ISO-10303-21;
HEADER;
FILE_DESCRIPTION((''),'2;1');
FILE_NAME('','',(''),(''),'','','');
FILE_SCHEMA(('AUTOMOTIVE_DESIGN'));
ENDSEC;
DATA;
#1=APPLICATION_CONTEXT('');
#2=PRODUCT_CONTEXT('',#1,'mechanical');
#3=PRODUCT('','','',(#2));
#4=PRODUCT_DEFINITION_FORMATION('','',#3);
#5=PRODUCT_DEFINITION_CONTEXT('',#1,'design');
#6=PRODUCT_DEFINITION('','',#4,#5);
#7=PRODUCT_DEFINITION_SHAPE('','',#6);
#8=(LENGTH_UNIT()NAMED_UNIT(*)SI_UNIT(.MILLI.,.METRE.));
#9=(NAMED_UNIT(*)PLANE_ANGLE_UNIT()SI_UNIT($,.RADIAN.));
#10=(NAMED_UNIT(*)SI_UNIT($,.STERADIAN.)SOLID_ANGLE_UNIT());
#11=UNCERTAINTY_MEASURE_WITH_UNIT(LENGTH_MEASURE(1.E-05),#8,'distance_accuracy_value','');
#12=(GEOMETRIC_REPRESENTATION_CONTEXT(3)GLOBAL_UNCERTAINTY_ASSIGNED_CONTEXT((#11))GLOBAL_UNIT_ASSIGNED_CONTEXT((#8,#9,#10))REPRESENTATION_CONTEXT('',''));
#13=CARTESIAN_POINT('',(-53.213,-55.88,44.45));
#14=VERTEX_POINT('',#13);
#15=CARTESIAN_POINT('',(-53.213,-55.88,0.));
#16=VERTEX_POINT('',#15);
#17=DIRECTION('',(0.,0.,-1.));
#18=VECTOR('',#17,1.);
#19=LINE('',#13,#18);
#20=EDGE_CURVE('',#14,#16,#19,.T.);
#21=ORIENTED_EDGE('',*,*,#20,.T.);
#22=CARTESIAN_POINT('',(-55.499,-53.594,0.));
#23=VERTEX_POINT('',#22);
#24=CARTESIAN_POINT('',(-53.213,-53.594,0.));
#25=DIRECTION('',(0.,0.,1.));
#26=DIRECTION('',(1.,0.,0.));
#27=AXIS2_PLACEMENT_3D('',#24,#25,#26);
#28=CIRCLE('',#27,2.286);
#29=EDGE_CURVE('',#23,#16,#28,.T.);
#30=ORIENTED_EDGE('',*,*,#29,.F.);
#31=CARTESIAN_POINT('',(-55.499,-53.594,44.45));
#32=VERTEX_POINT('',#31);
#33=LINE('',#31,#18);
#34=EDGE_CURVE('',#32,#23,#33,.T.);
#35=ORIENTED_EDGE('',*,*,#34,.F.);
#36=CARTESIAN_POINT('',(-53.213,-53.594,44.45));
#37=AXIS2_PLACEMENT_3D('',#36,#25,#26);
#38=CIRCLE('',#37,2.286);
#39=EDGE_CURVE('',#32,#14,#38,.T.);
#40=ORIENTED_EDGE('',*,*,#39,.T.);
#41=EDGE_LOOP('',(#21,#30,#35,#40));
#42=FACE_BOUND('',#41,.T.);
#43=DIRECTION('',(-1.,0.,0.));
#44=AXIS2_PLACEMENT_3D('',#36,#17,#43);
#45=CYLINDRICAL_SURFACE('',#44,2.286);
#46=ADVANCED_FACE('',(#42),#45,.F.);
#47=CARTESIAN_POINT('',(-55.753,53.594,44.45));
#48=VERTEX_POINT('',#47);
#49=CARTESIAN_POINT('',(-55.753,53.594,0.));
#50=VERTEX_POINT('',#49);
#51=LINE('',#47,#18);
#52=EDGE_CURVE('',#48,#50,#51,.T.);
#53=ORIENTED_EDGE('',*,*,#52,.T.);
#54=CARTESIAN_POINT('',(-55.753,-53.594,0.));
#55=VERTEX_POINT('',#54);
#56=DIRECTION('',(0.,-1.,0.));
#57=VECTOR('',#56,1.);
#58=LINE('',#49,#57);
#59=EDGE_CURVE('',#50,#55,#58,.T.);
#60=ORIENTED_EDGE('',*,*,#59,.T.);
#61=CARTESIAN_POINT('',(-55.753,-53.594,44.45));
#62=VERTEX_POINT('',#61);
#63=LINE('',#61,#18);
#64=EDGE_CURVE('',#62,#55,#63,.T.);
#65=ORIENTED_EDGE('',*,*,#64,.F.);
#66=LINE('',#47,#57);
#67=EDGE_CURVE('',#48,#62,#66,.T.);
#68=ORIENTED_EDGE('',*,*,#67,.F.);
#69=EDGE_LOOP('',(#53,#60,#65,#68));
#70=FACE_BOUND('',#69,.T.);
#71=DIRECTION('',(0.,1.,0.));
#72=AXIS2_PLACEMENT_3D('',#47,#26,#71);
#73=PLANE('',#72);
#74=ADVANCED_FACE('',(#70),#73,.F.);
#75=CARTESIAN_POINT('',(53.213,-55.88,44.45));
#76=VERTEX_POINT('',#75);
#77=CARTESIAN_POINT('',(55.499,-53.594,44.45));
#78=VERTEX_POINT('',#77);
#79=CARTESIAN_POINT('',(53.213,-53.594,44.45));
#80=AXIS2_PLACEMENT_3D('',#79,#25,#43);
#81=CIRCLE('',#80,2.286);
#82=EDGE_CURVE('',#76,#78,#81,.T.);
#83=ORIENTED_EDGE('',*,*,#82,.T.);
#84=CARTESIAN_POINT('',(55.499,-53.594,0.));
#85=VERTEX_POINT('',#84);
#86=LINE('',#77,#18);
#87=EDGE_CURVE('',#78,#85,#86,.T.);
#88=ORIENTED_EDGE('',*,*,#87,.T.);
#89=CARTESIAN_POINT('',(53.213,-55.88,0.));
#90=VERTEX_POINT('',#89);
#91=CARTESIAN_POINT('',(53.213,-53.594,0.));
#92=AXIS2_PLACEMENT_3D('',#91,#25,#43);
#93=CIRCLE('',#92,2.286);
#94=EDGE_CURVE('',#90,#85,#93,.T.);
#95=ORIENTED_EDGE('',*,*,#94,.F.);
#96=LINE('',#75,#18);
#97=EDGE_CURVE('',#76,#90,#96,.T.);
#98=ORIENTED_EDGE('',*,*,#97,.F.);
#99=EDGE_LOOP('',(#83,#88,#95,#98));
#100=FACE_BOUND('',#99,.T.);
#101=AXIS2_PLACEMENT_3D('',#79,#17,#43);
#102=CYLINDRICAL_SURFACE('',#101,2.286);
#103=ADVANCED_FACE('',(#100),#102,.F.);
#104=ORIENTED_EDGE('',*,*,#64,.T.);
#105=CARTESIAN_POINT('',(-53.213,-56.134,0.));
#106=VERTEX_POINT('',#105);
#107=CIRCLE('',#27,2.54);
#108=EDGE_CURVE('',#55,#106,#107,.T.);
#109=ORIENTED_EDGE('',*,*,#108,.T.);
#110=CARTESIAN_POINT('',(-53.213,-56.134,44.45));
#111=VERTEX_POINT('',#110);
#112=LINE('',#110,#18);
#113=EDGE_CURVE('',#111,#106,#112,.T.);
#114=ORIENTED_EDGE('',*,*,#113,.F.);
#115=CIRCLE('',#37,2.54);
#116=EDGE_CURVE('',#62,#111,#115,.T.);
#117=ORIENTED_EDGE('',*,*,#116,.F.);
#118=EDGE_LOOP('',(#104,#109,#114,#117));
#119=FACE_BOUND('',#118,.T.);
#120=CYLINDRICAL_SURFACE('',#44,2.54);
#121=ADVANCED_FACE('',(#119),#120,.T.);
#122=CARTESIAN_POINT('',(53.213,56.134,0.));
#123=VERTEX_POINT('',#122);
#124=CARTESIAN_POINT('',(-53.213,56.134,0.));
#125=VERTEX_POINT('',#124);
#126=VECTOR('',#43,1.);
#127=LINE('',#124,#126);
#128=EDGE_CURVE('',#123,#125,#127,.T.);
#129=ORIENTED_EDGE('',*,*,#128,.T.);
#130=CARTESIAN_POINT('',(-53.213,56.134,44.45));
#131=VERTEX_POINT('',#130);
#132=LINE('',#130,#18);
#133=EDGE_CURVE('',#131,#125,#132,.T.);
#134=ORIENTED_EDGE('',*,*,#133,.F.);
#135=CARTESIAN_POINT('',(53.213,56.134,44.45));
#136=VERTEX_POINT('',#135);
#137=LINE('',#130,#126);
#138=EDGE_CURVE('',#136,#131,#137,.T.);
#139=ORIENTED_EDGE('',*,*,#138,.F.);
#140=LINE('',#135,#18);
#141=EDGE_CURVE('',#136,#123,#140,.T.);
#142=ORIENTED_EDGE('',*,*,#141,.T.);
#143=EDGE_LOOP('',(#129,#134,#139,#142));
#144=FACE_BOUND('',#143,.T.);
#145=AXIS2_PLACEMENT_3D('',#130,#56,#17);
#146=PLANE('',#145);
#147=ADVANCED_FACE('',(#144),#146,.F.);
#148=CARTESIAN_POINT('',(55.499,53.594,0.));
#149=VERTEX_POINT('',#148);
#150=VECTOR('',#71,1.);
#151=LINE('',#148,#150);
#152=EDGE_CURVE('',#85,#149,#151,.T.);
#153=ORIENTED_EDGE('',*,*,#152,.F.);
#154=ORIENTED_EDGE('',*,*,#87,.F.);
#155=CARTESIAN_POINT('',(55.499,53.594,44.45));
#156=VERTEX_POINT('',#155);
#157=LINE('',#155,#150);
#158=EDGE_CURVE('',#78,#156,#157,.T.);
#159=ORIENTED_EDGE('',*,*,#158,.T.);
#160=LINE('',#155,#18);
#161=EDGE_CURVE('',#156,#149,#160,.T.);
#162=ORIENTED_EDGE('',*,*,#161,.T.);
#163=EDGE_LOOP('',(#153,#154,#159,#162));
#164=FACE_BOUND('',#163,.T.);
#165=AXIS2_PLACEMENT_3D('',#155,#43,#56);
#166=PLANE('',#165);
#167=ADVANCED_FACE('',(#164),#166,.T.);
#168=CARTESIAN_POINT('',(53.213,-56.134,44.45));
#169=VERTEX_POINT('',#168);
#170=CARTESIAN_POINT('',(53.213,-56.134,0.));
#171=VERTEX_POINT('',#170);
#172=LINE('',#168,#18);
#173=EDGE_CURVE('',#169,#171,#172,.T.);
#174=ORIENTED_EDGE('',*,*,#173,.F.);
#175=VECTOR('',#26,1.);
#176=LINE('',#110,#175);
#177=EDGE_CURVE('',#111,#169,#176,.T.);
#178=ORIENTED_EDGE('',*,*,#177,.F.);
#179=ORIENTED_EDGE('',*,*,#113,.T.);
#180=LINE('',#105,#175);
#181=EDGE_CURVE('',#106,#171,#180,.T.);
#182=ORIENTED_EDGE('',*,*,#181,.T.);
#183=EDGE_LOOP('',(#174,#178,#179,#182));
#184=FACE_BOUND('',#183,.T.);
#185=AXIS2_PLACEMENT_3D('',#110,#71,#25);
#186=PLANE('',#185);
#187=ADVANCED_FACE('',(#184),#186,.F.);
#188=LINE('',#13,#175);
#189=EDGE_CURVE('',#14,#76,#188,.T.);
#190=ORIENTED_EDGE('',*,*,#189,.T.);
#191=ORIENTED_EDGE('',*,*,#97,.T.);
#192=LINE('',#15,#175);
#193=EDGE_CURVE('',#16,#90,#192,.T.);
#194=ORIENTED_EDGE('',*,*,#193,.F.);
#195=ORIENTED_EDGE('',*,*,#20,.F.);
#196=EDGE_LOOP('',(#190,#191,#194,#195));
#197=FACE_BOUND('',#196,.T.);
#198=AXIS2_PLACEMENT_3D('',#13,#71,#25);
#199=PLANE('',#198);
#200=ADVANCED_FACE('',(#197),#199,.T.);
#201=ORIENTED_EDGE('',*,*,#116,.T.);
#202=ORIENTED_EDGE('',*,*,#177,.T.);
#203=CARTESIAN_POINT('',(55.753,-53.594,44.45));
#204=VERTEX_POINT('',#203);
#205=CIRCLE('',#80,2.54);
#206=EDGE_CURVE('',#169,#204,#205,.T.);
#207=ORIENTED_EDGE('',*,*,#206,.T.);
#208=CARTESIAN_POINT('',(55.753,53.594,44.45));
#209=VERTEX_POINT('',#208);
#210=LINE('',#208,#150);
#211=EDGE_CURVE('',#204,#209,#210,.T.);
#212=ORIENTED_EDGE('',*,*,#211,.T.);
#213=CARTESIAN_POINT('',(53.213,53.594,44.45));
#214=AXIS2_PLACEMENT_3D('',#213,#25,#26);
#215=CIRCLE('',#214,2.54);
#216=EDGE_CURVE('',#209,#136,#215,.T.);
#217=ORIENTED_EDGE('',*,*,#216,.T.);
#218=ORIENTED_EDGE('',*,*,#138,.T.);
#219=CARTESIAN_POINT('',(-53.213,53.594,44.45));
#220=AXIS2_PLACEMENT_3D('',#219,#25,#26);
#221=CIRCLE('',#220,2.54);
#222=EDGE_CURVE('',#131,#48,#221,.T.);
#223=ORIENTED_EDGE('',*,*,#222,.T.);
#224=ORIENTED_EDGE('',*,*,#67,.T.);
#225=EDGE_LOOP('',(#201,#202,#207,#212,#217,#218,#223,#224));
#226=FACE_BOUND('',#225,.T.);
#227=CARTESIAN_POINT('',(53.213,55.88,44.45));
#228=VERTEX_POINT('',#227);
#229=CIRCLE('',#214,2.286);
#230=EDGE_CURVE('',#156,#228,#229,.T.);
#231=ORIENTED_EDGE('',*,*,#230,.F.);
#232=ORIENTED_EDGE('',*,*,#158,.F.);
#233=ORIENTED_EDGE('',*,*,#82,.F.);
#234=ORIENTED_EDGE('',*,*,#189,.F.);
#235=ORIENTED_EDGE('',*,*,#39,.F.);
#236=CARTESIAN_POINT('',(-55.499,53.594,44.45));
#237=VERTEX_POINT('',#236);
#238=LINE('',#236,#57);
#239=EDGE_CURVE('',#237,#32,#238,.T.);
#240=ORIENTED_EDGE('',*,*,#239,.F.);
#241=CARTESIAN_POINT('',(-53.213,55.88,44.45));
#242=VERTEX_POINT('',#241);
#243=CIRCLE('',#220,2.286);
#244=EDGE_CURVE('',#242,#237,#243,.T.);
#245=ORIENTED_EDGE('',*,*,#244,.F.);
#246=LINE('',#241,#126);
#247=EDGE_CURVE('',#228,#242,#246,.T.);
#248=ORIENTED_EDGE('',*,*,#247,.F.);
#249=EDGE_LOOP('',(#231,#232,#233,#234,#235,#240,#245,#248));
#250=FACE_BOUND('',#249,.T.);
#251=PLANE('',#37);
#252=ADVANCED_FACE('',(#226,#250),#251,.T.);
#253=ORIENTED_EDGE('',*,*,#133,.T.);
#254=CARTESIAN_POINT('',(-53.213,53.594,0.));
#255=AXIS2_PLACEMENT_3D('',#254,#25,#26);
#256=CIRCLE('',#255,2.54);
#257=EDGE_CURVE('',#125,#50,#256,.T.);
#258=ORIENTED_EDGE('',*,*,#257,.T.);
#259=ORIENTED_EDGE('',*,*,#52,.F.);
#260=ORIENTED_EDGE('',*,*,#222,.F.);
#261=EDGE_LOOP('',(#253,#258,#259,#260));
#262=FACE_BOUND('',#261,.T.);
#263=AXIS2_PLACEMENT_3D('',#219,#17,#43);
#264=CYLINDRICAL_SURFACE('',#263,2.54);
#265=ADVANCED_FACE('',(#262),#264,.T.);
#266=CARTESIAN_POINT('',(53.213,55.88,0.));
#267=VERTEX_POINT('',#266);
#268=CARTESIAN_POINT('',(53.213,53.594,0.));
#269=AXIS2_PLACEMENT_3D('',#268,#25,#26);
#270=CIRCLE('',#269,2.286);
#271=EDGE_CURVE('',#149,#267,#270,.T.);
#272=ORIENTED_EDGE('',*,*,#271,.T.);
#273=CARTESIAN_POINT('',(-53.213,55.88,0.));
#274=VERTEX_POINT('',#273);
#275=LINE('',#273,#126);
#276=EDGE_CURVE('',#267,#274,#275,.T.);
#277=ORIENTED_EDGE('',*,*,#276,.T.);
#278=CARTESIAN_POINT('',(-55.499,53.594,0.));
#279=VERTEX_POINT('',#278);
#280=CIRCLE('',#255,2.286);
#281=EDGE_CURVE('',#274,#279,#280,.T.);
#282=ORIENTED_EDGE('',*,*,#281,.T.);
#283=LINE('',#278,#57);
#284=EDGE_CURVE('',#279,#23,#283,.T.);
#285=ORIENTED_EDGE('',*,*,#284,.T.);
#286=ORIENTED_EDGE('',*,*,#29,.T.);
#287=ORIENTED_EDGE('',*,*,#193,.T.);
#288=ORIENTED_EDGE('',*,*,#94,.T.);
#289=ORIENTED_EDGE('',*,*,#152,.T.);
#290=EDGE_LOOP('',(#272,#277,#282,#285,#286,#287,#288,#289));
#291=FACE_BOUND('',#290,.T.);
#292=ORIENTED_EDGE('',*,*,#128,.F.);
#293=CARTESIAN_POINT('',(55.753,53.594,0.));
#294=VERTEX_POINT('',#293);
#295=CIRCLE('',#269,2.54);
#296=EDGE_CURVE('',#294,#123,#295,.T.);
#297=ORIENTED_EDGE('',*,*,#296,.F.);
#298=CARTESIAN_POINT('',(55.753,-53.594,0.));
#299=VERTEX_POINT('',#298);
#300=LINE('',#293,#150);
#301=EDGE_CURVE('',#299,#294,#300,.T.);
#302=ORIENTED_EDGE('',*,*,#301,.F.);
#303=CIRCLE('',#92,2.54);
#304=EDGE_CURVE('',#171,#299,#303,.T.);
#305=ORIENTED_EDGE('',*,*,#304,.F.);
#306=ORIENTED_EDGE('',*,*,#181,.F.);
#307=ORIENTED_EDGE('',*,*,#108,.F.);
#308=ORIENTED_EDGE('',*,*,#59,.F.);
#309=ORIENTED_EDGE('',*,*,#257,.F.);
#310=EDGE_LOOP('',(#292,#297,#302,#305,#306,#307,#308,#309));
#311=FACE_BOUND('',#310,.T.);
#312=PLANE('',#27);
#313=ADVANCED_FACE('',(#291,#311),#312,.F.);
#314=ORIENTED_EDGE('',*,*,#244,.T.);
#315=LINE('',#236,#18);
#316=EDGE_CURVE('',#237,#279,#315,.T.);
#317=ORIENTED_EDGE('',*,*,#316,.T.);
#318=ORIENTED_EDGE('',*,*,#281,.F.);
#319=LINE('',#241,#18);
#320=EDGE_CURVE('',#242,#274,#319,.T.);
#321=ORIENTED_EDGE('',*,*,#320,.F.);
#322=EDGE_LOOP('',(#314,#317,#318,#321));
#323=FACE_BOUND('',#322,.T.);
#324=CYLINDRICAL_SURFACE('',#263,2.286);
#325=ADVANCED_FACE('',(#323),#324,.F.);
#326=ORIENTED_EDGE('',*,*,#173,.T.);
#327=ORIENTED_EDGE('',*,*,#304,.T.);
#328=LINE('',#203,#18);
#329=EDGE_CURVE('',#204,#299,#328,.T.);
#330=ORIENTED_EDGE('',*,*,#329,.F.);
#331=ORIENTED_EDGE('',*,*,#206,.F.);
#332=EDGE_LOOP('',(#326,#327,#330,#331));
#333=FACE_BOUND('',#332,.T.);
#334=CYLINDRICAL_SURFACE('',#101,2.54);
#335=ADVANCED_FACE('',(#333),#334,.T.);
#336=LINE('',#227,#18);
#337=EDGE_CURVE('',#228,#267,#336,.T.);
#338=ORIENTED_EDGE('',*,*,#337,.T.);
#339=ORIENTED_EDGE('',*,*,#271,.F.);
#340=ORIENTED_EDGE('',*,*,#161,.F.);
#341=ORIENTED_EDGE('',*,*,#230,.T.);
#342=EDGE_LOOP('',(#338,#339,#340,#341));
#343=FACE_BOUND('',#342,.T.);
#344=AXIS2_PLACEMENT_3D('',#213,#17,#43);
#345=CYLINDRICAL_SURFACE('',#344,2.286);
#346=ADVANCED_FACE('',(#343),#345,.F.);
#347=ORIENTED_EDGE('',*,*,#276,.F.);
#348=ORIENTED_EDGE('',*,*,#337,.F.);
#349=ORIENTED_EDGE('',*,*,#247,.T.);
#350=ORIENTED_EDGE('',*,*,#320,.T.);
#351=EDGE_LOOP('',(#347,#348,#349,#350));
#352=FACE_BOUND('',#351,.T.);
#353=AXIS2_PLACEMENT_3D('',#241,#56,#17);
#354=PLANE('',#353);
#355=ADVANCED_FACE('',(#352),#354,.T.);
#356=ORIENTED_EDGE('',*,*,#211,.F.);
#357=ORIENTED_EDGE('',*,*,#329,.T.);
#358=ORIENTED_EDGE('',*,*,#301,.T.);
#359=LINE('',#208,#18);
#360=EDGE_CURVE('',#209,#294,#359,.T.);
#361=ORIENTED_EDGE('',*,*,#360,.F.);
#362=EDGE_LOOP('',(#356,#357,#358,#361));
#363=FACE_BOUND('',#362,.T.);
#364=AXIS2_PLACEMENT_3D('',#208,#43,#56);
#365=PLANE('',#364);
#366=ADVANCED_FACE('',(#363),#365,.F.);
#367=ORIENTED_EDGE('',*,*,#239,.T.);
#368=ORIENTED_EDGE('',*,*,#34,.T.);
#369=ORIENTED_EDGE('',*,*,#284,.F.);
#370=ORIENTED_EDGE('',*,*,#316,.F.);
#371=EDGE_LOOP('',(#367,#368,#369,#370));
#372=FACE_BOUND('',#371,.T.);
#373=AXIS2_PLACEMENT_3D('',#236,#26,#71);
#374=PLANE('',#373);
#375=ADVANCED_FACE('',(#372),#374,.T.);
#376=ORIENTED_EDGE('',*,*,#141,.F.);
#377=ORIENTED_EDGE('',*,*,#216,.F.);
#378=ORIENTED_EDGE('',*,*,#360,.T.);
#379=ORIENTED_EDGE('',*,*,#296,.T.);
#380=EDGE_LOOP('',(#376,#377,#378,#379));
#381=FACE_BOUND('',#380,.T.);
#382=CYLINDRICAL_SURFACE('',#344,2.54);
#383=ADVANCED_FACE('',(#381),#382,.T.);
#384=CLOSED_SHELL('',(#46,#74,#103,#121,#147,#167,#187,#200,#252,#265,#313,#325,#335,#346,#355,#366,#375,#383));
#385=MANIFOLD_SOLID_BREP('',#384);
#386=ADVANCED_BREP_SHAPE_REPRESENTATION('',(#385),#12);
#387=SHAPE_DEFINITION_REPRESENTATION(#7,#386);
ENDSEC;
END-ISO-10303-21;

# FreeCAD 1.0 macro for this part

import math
import FreeCAD as App
import Part
import Sketcher

V = App.Vector
Q = App.Units.Quantity

doc = App.newDocument("Part")
params = doc.addObject("Spreadsheet::Sheet", "Params")
for row, (alias, value) in enumerate([
    ("sketch1_radius", "0.1 in"),
    ("sketch1_radius2", "0.09 in"),
    ("sketch1_width", "4.19 in"),
    ("sketch1_height", "4.22 in"),
    ("pad1_length", "1.75 in"),
], start=1):
    params.set(f"A{row}", alias)
    params.set(f"B{row}", "=" + value)
    params.setAlias(f"B{row}", alias)

body = doc.addObject("PartDesign::Body", "Body")

sketch1 = body.newObject("Sketcher::SketchObject", "Sketch")
sketch1.AttachmentSupport = (doc.getObject("XY_Plane"), [""])
sketch1.MapMode = "FlatFace"
sketch1.addGeometry([
    Part.LineSegment(V(53.2, 56.1, 0), V(-53.2, 56.1, 0)),
    Part.ArcOfCircle(Part.Circle(V(-53.2, 53.6, 0), V(0, 0, 1), 2.5), math.radians(90), math.radians(180)),
    Part.LineSegment(V(-55.8, 53.6, 0), V(-55.8, -53.6, 0)),
    Part.ArcOfCircle(Part.Circle(V(-53.2, -53.6, 0), V(0, 0, 1), 2.5), math.radians(-180), math.radians(-90)),
    Part.LineSegment(V(-53.2, -56.1, 0), V(53.2, -56.1, 0)),
    Part.ArcOfCircle(Part.Circle(V(53.2, -53.6, 0), V(0, 0, 1), 2.5), math.radians(-90), math.radians(0)),
    Part.LineSegment(V(55.8, -53.6, 0), V(55.8, 53.6, 0)),
    Part.ArcOfCircle(Part.Circle(V(53.2, 53.6, 0), V(0, 0, 1), 2.5), math.radians(0), math.radians(90)),
    Part.ArcOfCircle(Part.Circle(V(-53.2, 53.6, 0), V(0, 0, 1), 2.3), math.radians(90), math.radians(180)),
    Part.LineSegment(V(-53.2, 55.9, 0), V(53.2, 55.9, 0)),
    Part.ArcOfCircle(Part.Circle(V(53.2, 53.6, 0), V(0, 0, 1), 2.3), math.radians(0), math.radians(90)),
    Part.LineSegment(V(55.5, 53.6, 0), V(55.5, -53.6, 0)),
    Part.ArcOfCircle(Part.Circle(V(53.2, -53.6, 0), V(0, 0, 1), 2.3), math.radians(-90), math.radians(0)),
    Part.LineSegment(V(53.2, -55.9, 0), V(-53.2, -55.9, 0)),
    Part.ArcOfCircle(Part.Circle(V(-53.2, -53.6, 0), V(0, 0, 1), 2.3), math.radians(180), math.radians(270)),
    Part.LineSegment(V(-55.5, -53.6, 0), V(-55.5, 53.6, 0)),
], False)
sketch1.addConstraint([
    Sketcher.Constraint("Tangent", 0, 2, 1, 1),
    Sketcher.Constraint("Tangent", 1, 2, 2, 1),
    Sketcher.Constraint("Tangent", 2, 2, 3, 1),
    Sketcher.Constraint("Tangent", 3, 2, 4, 1),
    Sketcher.Constraint("Tangent", 4, 2, 5, 1),
    Sketcher.Constraint("Tangent", 5, 2, 6, 1),
    Sketcher.Constraint("Tangent", 6, 2, 7, 1),
    Sketcher.Constraint("Tangent", 7, 2, 0, 1),
    Sketcher.Constraint("Tangent", 8, 1, 9, 1),
    Sketcher.Constraint("Tangent", 9, 2, 10, 2),
    Sketcher.Constraint("Tangent", 10, 1, 11, 1),
    Sketcher.Constraint("Tangent", 11, 2, 12, 2),
    Sketcher.Constraint("Tangent", 12, 1, 13, 1),
    Sketcher.Constraint("Tangent", 13, 2, 14, 2),
    Sketcher.Constraint("Tangent", 14, 1, 15, 1),
    Sketcher.Constraint("Tangent", 15, 2, 8, 2),
    Sketcher.Constraint("Horizontal", 0),
    Sketcher.Constraint("Vertical", 2),
    Sketcher.Constraint("Horizontal", 4),
    Sketcher.Constraint("Vertical", 6),
    Sketcher.Constraint("Horizontal", 9),
    Sketcher.Constraint("Vertical", 11),
    Sketcher.Constraint("Horizontal", 13),
    Sketcher.Constraint("Vertical", 15),
    Sketcher.Constraint("Coincident", 8, 3, 1, 3),
    Sketcher.Constraint("Coincident", 10, 3, 7, 3),
    Sketcher.Constraint("Coincident", 12, 3, 5, 3),
    Sketcher.Constraint("Equal", 1, 3),
    Sketcher.Constraint("Equal", 3, 5),
    Sketcher.Constraint("Equal", 5, 7),
    Sketcher.Constraint("Equal", 12, 14),
    Sketcher.Constraint("Symmetric", 1, 3, 5, 3, -1, 1),
    Sketcher.Constraint("Radius", 1, Q("0.1 in")),
    Sketcher.Constraint("Radius", 8, Q("0.09 in")),
    Sketcher.Constraint("DistanceX", 0, 2, 0, 1, Q("4.19 in")),
    Sketcher.Constraint("DistanceY", 2, 2, 2, 1, Q("4.22 in")),
])
sketch1.setExpression("Constraints[32]", "Params.sketch1_radius")
sketch1.setExpression("Constraints[33]", "Params.sketch1_radius2")
sketch1.setExpression("Constraints[34]", "Params.sketch1_width")
sketch1.setExpression("Constraints[35]", "Params.sketch1_height")
pad1 = body.newObject("PartDesign::Pad", "Pad")
pad1.Profile = sketch1
pad1.setExpression("Length", "Params.pad1_length")

doc.recompute()
